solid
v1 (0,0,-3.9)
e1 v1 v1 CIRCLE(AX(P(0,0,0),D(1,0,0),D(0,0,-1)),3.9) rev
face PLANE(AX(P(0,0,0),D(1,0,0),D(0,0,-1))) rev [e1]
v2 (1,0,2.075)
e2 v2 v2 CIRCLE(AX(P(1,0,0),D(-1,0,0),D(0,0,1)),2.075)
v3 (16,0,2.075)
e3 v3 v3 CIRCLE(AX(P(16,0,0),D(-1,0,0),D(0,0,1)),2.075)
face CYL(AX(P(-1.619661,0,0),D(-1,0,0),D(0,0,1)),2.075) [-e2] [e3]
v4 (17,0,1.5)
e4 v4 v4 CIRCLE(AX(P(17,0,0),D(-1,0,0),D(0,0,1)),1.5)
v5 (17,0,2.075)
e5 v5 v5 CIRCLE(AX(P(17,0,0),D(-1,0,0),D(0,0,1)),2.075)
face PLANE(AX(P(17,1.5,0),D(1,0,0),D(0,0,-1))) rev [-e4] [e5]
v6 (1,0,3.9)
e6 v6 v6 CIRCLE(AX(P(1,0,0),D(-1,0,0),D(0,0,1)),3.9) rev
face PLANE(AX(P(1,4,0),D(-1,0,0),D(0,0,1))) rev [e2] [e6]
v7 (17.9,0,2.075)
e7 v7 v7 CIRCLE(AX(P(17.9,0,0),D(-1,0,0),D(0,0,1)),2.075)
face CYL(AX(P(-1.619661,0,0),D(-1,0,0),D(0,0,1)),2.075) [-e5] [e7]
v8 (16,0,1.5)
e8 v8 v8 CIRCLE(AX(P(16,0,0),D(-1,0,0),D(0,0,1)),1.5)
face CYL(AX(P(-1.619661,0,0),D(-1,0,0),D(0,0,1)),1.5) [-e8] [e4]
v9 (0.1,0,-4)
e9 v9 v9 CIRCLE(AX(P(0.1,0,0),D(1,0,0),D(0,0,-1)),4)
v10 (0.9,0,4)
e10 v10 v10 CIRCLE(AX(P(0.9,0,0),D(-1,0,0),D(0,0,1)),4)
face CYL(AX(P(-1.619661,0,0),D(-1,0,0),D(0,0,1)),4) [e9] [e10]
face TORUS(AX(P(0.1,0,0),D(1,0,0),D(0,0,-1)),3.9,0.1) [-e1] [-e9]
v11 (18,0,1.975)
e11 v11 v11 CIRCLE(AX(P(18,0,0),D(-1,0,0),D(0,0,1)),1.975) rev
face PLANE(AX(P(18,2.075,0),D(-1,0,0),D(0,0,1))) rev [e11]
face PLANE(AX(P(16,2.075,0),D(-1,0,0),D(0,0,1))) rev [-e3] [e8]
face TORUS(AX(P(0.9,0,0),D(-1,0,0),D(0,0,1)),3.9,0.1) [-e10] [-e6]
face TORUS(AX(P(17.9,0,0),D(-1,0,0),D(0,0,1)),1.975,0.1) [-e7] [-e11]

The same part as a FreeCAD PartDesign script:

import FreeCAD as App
import Part
import Sketcher

V = App.Vector
Q = App.Units.Quantity


def edges_at(feature, points):
    """Names of the edges that pass closest to the given points."""
    edges = feature.Shape.Edges
    near = lambda p: min(range(len(edges)), key=lambda i: edges[i].distToShape(Part.Vertex(*p))[0])
    return sorted({f"Edge{near(p) + 1}" for p in points})


def add_polygon(sketch, points):
    """Adds a closed chain of lines whose ends are joined by coincident constraints."""
    first, n = sketch.GeometryCount, len(points)
    for a, b in zip(points, points[1:] + points[:1]):
        sketch.addGeometry(Part.LineSegment(App.Vector(*a, 0), App.Vector(*b, 0)), False)
    for i in range(n):
        sketch.addConstraint(Sketcher.Constraint("Coincident", first + i, 2, first + (i + 1) % n, 1))

doc = App.newDocument("Part")
body = doc.addObject("PartDesign::Body", "Body")

# Sketch on XY plane
sketch1 = body.newObject("Sketcher::SketchObject", "Sketch")
sketch1.AttachmentSupport = (doc.getObject("XY_Plane"), [""])
sketch1.MapMode = "FlatFace"
add_polygon(sketch1, [(0, 4), (0, 0), (18, 0), (18, 2.075), (17, 2.075), (17, 1.5), (16, 1.5), (16, 2.075), (1, 2.075), (1, 4)])  # lines 0-9
sketch1.addConstraint(Sketcher.Constraint("Vertical", 0))
sketch1.addConstraint(Sketcher.Constraint("Horizontal", 1))
sketch1.addConstraint(Sketcher.Constraint("Vertical", 2))
sketch1.addConstraint(Sketcher.Constraint("Horizontal", 3))
sketch1.addConstraint(Sketcher.Constraint("Vertical", 4))
sketch1.addConstraint(Sketcher.Constraint("Horizontal", 5))
sketch1.addConstraint(Sketcher.Constraint("Vertical", 6))
sketch1.addConstraint(Sketcher.Constraint("Horizontal", 7))
sketch1.addConstraint(Sketcher.Constraint("Vertical", 8))
sketch1.addConstraint(Sketcher.Constraint("Horizontal", 9))
sketch1.addConstraint(Sketcher.Constraint("Coincident", 0, 2, -1, 1))
sketch1.addConstraint(Sketcher.Constraint("Horizontal", 3, 2, 6, 2))
sketch1.addConstraint(Sketcher.Constraint("Equal", 3, 5))
sketch1.addConstraint(Sketcher.Constraint("Equal", 5, 9))
sketch1.addConstraint(Sketcher.Constraint("DistanceX", 1, 1, 1, 2, Q("18 mm")))
sketch1.addConstraint(Sketcher.Constraint("DistanceX", 3, 2, 3, 1, Q("1 mm")))
sketch1.addConstraint(Sketcher.Constraint("DistanceY", 0, 2, 0, 1, Q("4 mm")))
sketch1.addConstraint(Sketcher.Constraint("DistanceY", -1, 1, 4, 2, Q("1.5 mm")))
sketch1.addConstraint(Sketcher.Constraint("DistanceY", 2, 1, 2, 2, Q("2.075 mm")))
revolution = body.newObject("PartDesign::Revolution", "Revolution")
revolution.Profile = sketch1
revolution.ReferenceAxis = (sketch1, ["H_Axis"])
revolution.Angle = 360
doc.recompute()

fillet = body.newObject("PartDesign::Fillet", "Fillet")
fillet.Base = (revolution, edges_at(revolution, [(1, -4, 0), (0, -4, 0), (18, -2.075, 0)]))
fillet.Radius = 0.1

doc.recompute()
